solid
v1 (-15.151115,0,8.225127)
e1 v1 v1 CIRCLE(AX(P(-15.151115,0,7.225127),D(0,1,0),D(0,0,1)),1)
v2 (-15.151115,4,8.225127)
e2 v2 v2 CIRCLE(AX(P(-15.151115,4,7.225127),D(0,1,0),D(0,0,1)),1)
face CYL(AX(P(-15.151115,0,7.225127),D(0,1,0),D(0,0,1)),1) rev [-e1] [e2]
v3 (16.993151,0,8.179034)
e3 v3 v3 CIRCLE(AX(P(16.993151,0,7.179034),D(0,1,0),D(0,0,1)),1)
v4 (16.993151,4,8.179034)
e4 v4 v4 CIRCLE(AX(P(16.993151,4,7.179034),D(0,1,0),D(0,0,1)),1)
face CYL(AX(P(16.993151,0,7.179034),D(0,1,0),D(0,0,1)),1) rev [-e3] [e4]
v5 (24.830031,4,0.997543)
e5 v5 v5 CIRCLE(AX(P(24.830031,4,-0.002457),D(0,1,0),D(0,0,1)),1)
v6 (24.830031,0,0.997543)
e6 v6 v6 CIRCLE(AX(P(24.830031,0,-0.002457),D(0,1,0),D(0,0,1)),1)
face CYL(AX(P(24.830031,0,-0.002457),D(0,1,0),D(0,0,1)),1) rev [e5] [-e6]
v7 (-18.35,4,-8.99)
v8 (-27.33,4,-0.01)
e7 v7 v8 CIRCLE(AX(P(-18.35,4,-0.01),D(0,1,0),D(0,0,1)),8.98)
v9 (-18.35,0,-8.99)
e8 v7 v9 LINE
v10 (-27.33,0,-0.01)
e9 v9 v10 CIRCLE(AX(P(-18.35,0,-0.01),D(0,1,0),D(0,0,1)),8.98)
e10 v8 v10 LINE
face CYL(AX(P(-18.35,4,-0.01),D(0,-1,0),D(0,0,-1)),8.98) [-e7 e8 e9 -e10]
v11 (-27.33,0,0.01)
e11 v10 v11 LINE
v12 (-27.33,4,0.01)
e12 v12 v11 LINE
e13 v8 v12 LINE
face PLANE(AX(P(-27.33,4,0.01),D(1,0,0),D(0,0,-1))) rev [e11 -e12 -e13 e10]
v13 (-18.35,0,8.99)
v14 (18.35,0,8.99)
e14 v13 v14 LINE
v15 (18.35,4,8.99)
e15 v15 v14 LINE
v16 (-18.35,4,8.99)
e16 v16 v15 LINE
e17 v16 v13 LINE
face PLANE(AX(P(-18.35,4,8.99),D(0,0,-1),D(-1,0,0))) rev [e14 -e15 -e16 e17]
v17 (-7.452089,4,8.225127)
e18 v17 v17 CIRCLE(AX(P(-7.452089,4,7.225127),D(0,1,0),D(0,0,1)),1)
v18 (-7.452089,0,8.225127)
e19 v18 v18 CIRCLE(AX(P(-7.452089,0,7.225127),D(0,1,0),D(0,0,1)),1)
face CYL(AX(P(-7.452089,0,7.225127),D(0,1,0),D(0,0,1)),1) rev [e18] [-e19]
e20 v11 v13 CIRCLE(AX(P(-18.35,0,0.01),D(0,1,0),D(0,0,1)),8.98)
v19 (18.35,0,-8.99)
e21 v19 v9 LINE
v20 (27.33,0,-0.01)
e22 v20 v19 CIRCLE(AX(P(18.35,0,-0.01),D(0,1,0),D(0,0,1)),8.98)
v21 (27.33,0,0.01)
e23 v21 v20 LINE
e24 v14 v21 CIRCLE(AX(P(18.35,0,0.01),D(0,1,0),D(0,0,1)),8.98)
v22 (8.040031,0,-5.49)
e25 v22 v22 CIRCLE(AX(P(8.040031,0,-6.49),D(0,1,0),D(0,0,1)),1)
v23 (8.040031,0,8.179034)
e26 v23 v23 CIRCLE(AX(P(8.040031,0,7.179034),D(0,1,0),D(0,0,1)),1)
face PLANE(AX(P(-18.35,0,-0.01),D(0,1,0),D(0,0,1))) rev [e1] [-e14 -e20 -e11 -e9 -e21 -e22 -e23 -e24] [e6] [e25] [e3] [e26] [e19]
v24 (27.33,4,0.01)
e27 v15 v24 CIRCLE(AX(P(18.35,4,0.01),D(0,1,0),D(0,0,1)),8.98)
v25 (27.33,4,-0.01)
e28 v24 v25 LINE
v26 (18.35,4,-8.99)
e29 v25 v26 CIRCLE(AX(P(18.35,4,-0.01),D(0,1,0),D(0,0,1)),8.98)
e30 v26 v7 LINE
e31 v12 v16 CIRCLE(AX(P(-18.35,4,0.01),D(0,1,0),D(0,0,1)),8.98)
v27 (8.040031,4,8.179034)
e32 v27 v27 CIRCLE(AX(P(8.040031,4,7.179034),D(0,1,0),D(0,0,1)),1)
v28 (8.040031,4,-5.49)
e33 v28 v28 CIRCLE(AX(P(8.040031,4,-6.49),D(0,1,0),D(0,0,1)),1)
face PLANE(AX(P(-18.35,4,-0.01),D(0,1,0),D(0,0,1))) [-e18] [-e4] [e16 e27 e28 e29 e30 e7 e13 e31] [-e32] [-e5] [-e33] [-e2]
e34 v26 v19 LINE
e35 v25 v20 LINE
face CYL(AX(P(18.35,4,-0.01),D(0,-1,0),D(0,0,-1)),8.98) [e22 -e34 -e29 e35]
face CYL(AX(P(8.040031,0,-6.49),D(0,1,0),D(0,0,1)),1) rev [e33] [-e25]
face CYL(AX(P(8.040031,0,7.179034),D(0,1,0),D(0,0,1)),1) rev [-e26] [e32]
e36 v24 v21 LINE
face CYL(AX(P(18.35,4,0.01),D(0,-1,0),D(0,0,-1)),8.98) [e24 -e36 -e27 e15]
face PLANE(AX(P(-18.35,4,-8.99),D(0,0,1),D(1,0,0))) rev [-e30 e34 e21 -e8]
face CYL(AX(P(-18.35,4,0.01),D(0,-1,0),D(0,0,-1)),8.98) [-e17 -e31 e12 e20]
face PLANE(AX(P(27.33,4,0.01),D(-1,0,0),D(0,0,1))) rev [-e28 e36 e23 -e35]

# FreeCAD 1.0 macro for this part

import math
import FreeCAD as App
import Part
import Sketcher

V = App.Vector

doc = App.newDocument("Part")
body = doc.addObject("PartDesign::Body", "Body")

# Sketch on XZ plane
sketch1 = body.newObject("Sketcher::SketchObject", "Sketch")
sketch1.AttachmentSupport = (doc.getObject("XZ_Plane"), [""])
sketch1.MapMode = "FlatFace"
sketch1.addGeometry([
    Part.LineSegment(V(-18.35, 8.99, 0), V(18.35, 8.99, 0)),  # 0
    Part.ArcOfCircle(Part.Circle(V(18.35, 0.01, 0), V(0, 0, 1), 8.98), math.radians(0), math.radians(90)),  # 1
    Part.LineSegment(V(27.33, 0.01, 0), V(27.33, -0.01, 0)),  # 2
    Part.ArcOfCircle(Part.Circle(V(18.35, -0.01, 0), V(0, 0, 1), 8.98), math.radians(-90), math.radians(0)),  # 3
    Part.LineSegment(V(18.35, -8.99, 0), V(-18.35, -8.99, 0)),  # 4
    Part.ArcOfCircle(Part.Circle(V(-18.35, -0.01, 0), V(0, 0, 1), 8.98), math.radians(180), math.radians(270)),  # 5
    Part.LineSegment(V(-27.33, -0.01, 0), V(-27.33, 0.01, 0)),  # 6
    Part.ArcOfCircle(Part.Circle(V(-18.35, 0.01, 0), V(0, 0, 1), 8.98), math.radians(90), math.radians(180)),  # 7
], False)
sketch1.addConstraint([
    Sketcher.Constraint("Tangent", 0, 2, 1, 2),
    Sketcher.Constraint("Tangent", 1, 1, 2, 1),
    Sketcher.Constraint("Tangent", 2, 2, 3, 2),
    Sketcher.Constraint("Tangent", 3, 1, 4, 1),
    Sketcher.Constraint("Tangent", 4, 2, 5, 2),
    Sketcher.Constraint("Tangent", 5, 1, 6, 1),
    Sketcher.Constraint("Tangent", 6, 2, 7, 2),
    Sketcher.Constraint("Tangent", 7, 1, 0, 1),
    Sketcher.Constraint("Horizontal", 0),
    Sketcher.Constraint("Horizontal", 4),
    Sketcher.Constraint("Equal", 1, 3),
    Sketcher.Constraint("Equal", 3, 5),
    Sketcher.Constraint("Equal", 5, 7),
    Sketcher.Constraint("Symmetric", 1, 3, 5, 3, -1, 1),
    Sketcher.Constraint("Horizontal", 7, 3, 1, 1),
    Sketcher.Constraint("Horizontal", 2, 2, 5, 1),
    Sketcher.Constraint("Radius", 1, 8.98),
    Sketcher.Constraint("DistanceX", 0, 1, 0, 2, 36.7),
    Sketcher.Constraint("DistanceY", 3, 3, 0, 2, 9.0),
])
pad1 = body.newObject("PartDesign::Pad", "Pad")
pad1.Profile = sketch1
pad1.Length = 4
pad1.Reversed = True

# Sketch on XZ plane
sketch2 = body.newObject("Sketcher::SketchObject", "Sketch001")
sketch2.AttachmentSupport = (doc.getObject("XZ_Plane"), [""])
sketch2.MapMode = "FlatFace"
sketch2.AttachmentOffset = App.Placement(V(0, 0, -4), App.Rotation())
sketch2.addGeometry([
    Part.Circle(V(24.830031, -0.002457, 0), V(0, 0, 1), 1),  # 0
    Part.Circle(V(8.040031, -6.49, 0), V(0, 0, 1), 1),  # 1
    Part.Circle(V(16.993151, 7.179034, 0), V(0, 0, 1), 1),  # 2
    Part.Circle(V(8.040031, 7.179034, 0), V(0, 0, 1), 1),  # 3
    Part.Circle(V(-15.151115, 7.225127, 0), V(0, 0, 1), 1),  # 4
    Part.Circle(V(-7.452089, 7.225127, 0), V(0, 0, 1), 1),  # 5
], False)
sketch2.addConstraint([
    Sketcher.Constraint("Equal", 0, 1),
    Sketcher.Constraint("Equal", 1, 2),
    Sketcher.Constraint("Equal", 2, 3),
    Sketcher.Constraint("Equal", 3, 4),
    Sketcher.Constraint("Equal", 4, 5),
    Sketcher.Constraint("Horizontal", 2, 3, 3, 3),
    Sketcher.Constraint("Horizontal", 4, 3, 5, 3),
    Sketcher.Constraint("Vertical", 1, 3, 3, 3),
    Sketcher.Constraint("Diameter", 0, 2.0),
    Sketcher.Constraint("DistanceY", 1, 3, -1, 1, 6.49),
    Sketcher.Constraint("DistanceX", 1, 3, 0, 3, 16.79),
    Sketcher.Constraint("DistanceX", -1, 1, 0, 3, 24.830031),
    Sketcher.Constraint("DistanceX", -1, 1, 2, 3, 16.993151),
    Sketcher.Constraint("DistanceX", 5, 3, -1, 1, 7.452089),
    Sketcher.Constraint("DistanceY", 0, 3, 2, 3, 7.181491),
    Sketcher.Constraint("DistanceY", 0, 3, -1, 1, 0.002457),
    Sketcher.Constraint("DistanceX", 4, 3, -1, 1, 15.151115),
    Sketcher.Constraint("DistanceY", -1, 1, 4, 3, 7.225127),
])
pocket1 = body.newObject("PartDesign::Pocket", "Pocket")
pocket1.Profile = sketch2
pocket1.Length = 4
pocket1.Reversed = True

doc.recompute()
